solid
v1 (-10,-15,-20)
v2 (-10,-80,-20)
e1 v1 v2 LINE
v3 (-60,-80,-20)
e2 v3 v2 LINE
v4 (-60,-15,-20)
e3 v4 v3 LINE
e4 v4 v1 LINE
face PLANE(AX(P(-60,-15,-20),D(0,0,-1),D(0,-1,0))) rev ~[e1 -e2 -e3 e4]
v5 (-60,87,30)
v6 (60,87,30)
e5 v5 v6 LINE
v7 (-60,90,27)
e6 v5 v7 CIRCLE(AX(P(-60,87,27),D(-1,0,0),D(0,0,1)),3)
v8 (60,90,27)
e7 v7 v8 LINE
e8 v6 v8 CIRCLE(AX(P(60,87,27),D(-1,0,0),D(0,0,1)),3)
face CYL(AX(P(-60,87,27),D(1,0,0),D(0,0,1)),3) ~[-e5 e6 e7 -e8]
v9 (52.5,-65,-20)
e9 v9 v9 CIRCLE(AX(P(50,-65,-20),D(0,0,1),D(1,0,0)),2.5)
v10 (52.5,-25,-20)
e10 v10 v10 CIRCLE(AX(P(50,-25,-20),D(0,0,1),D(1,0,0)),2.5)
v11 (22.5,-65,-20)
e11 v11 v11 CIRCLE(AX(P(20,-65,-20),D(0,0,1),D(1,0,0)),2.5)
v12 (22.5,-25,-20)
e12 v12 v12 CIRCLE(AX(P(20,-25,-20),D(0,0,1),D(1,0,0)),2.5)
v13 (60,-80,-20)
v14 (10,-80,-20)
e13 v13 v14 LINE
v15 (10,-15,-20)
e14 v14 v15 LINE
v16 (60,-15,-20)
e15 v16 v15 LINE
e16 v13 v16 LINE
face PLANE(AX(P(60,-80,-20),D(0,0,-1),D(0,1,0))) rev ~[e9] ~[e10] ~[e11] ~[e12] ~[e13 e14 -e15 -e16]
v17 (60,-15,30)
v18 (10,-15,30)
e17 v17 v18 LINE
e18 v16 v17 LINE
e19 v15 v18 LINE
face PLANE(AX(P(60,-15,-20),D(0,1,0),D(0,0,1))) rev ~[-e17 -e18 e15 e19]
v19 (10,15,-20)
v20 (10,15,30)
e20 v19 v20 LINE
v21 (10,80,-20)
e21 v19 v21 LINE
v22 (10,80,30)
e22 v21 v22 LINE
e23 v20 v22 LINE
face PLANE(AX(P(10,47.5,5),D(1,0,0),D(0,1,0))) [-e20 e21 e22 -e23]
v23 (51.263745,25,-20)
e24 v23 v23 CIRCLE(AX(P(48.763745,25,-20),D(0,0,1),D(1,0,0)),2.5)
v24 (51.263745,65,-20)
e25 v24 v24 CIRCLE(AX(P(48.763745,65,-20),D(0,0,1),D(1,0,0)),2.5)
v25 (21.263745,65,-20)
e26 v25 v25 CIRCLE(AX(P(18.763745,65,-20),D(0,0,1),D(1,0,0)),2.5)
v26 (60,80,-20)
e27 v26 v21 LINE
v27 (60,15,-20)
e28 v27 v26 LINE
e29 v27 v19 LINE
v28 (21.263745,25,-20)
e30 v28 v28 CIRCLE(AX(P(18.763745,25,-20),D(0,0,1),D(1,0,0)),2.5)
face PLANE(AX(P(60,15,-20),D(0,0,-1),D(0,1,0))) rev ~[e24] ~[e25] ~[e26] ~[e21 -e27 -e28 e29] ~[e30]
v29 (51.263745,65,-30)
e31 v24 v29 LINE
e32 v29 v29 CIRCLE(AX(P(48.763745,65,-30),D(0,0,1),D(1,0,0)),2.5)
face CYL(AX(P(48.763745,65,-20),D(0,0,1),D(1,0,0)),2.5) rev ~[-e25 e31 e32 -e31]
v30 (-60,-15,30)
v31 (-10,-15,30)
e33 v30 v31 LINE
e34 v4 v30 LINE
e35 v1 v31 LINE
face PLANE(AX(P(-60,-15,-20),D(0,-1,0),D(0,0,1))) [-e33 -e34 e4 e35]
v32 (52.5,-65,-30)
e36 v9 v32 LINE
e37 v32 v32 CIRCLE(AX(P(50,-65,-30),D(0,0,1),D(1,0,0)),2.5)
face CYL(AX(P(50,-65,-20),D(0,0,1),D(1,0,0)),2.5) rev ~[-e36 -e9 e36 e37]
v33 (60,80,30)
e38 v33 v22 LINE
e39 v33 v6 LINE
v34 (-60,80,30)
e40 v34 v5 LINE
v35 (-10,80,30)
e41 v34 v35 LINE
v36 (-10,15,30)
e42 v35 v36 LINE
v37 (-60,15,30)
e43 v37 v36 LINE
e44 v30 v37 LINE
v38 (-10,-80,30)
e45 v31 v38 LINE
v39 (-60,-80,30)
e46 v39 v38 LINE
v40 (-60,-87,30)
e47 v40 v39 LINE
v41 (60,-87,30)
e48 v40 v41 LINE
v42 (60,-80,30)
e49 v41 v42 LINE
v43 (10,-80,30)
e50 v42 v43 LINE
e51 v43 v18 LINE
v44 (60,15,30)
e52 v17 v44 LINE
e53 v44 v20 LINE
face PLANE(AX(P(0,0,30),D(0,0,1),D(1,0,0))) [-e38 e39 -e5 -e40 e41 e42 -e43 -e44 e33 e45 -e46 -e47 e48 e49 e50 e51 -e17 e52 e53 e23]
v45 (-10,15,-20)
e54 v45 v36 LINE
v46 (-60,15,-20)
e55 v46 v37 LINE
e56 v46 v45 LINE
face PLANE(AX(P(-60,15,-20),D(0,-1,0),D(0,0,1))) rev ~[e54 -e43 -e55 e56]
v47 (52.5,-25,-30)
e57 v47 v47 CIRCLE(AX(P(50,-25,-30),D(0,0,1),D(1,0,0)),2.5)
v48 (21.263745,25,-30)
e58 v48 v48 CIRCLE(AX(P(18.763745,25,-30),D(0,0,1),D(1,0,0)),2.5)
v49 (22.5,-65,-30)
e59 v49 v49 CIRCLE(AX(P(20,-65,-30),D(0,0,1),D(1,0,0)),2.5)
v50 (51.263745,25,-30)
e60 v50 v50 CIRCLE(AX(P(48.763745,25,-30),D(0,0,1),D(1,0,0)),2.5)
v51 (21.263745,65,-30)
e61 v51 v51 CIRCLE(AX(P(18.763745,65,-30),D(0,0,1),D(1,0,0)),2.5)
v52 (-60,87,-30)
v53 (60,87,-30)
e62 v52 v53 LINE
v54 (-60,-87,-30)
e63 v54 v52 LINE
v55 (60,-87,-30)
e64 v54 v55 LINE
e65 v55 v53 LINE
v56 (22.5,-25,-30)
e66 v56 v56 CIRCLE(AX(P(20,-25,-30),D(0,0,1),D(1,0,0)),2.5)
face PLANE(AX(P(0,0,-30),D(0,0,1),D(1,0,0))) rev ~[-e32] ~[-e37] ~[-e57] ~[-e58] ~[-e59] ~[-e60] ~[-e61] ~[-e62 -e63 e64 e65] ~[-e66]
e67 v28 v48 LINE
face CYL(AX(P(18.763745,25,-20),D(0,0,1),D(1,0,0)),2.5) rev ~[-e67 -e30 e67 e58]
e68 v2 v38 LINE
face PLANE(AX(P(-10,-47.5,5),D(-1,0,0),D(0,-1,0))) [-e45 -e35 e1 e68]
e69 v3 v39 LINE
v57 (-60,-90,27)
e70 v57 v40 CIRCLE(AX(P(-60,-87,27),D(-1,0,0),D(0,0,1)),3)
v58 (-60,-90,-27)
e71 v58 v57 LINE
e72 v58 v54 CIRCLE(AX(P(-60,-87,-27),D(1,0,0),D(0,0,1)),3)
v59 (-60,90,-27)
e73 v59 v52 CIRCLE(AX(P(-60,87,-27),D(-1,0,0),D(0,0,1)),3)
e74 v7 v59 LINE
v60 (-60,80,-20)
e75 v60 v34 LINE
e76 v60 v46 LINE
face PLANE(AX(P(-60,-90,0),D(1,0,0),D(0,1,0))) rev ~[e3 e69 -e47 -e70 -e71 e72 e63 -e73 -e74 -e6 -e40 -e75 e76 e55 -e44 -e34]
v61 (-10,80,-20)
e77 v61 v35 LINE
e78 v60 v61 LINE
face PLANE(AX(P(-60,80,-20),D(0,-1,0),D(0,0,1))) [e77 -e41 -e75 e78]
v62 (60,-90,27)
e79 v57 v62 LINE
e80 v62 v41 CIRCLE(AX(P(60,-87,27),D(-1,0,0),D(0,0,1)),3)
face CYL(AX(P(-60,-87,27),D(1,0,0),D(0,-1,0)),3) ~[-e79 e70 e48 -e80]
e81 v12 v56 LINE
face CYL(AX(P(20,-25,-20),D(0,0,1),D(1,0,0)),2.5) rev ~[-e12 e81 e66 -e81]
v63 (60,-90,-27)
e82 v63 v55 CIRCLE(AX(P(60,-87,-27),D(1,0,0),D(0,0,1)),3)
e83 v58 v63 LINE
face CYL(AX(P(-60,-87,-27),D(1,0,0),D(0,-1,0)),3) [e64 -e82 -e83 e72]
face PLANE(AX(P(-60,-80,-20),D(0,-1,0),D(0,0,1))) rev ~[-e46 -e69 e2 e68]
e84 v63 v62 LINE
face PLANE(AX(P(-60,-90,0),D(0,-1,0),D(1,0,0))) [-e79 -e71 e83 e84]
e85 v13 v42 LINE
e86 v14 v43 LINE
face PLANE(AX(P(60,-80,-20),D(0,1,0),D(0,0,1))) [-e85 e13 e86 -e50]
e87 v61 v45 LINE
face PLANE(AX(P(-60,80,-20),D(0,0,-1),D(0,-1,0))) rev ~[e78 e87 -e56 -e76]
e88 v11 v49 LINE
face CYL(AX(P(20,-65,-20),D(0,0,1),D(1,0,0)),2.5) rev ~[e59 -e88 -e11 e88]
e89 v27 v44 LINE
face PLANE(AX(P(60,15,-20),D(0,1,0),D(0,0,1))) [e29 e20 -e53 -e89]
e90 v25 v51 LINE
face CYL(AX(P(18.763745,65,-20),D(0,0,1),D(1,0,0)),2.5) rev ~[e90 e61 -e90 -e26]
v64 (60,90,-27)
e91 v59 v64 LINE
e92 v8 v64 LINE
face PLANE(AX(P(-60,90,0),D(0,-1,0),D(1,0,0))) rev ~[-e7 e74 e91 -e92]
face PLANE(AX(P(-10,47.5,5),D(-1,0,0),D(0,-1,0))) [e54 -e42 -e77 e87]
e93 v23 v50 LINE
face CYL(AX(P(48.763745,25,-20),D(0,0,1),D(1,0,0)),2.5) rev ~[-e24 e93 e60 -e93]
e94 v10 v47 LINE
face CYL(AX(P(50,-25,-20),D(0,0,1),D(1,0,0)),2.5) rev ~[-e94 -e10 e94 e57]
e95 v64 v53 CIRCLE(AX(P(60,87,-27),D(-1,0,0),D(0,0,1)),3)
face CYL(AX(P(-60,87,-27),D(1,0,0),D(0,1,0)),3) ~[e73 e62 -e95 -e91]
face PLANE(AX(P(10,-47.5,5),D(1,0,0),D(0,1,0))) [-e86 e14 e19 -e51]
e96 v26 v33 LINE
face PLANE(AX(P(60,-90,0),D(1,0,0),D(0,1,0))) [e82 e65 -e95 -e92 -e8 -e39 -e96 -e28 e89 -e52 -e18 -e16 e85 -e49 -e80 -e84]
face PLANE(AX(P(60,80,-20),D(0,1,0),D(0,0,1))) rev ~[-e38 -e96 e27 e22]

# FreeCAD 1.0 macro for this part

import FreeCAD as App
import Part
import Sketcher
from FreeCAD import Vector


def edges_at(feature, points):
    """Names of the edges that pass closest to the given points."""
    edges = feature.Shape.Edges
    near = lambda p: min(range(len(edges)), key=lambda i: edges[i].distToShape(Part.Vertex(*p))[0])
    return sorted({f"Edge{near(p) + 1}" for p in points})

doc = App.newDocument("Part")
params = doc.addObject("Spreadsheet::Sheet", "Params")
for row, (alias, value) in enumerate([
    ("sketch1_width", "120 mm"),
    ("sketch1_height", "180 mm"),
    ("pad1_length", "60 mm"),
    ("sketch2_width", "65 mm"),
    ("sketch2_height", "50 mm"),
    ("pocket1_length", "50 mm"),
    ("sketch3_width", "65 mm"),
    ("sketch3_height", "50 mm"),
    ("pocket2_length", "50 mm"),
    ("fillet_radius", "3 mm"),
    ("sketch4_diameter", "5 mm"),
], start=1):
    params.set(f"A{row}", alias)
    params.set(f"B{row}", "=" + value)
    params.setAlias(f"B{row}", alias)

body = doc.addObject("PartDesign::Body", "Body")

# Sketch on XY plane
sketch1 = body.newObject("Sketcher::SketchObject", "Sketch")
sketch1.AttachmentSupport = (doc.getObject("XY_Plane"), [""])
sketch1.MapMode = "FlatFace"
sketch1.addGeometry([
    Part.LineSegment(Vector(-60, 90, 0), Vector(-60, -90, 0)),
    Part.LineSegment(Vector(-60, -90, 0), Vector(60, -90, 0)),
    Part.LineSegment(Vector(60, -90, 0), Vector(60, 90, 0)),
    Part.LineSegment(Vector(60, 90, 0), Vector(-60, 90, 0)),
], False)
sketch1.addConstraint([
    Sketcher.Constraint("Coincident", 0, 2, 1, 1),
    Sketcher.Constraint("Coincident", 1, 2, 2, 1),
    Sketcher.Constraint("Coincident", 2, 2, 3, 1),
    Sketcher.Constraint("Coincident", 3, 2, 0, 1),
    Sketcher.Constraint("Vertical", 0),
    Sketcher.Constraint("Horizontal", 1),
    Sketcher.Constraint("Vertical", 2),
    Sketcher.Constraint("Horizontal", 3),
    Sketcher.Constraint("Symmetric", 0, 2, 2, 2, -1, 1),
    Sketcher.Constraint("DistanceX", 1, 1, 1, 2, 120.0),
    Sketcher.Constraint("DistanceY", 0, 2, 0, 1, 180.0),
])
sketch1.setExpression("Constraints[9]", "Params.sketch1_width")
sketch1.setExpression("Constraints[10]", "Params.sketch1_height")
pad1 = body.newObject("PartDesign::Pad", "Pad")
pad1.Profile = sketch1
pad1.setExpression("Length", "Params.pad1_length")
pad1.Midplane = True

# Sketch on YZ plane
sketch2 = body.newObject("Sketcher::SketchObject", "Sketch001")
sketch2.AttachmentSupport = (doc.getObject("YZ_Plane"), [""])
sketch2.MapMode = "FlatFace"
sketch2.AttachmentOffset = App.Placement(Vector(0, 0, 60), App.Rotation())
sketch2.addGeometry([
    Part.LineSegment(Vector(-80, 30, 0), Vector(-80, -20, 0)),  # 0
    Part.LineSegment(Vector(-80, -20, 0), Vector(-15, -20, 0)),  # 1
    Part.LineSegment(Vector(-15, -20, 0), Vector(-15, 30, 0)),  # 2
    Part.LineSegment(Vector(-15, 30, 0), Vector(-80, 30, 0)),  # 3
    Part.LineSegment(Vector(15, 30, 0), Vector(15, -20, 0)),  # 4
    Part.LineSegment(Vector(15, -20, 0), Vector(80, -20, 0)),  # 5
    Part.LineSegment(Vector(80, -20, 0), Vector(80, 30, 0)),  # 6
    Part.LineSegment(Vector(80, 30, 0), Vector(15, 30, 0)),  # 7
], False)
sketch2.addConstraint([
    Sketcher.Constraint("Coincident", 0, 2, 1, 1),
    Sketcher.Constraint("Coincident", 1, 2, 2, 1),
    Sketcher.Constraint("Coincident", 2, 2, 3, 1),
    Sketcher.Constraint("Coincident", 3, 2, 0, 1),
    Sketcher.Constraint("Coincident", 4, 2, 5, 1),
    Sketcher.Constraint("Coincident", 5, 2, 6, 1),
    Sketcher.Constraint("Coincident", 6, 2, 7, 1),
    Sketcher.Constraint("Coincident", 7, 2, 4, 1),
    Sketcher.Constraint("Vertical", 0),
    Sketcher.Constraint("Horizontal", 1),
    Sketcher.Constraint("Vertical", 2),
    Sketcher.Constraint("Horizontal", 3),
    Sketcher.Constraint("Vertical", 4),
    Sketcher.Constraint("Horizontal", 5),
    Sketcher.Constraint("Vertical", 6),
    Sketcher.Constraint("Horizontal", 7),
    Sketcher.Constraint("Symmetric", 1, 2, 4, 2, -2),
    Sketcher.Constraint("Symmetric", 3, 2, 6, 2, -2),
    Sketcher.Constraint("DistanceX", 1, 1, 1, 2, 65.0),
    Sketcher.Constraint("DistanceY", 0, 2, 0, 1, 50.0),
    Sketcher.Constraint("DistanceX", 0, 2, -1, 1, 80.0),
    Sketcher.Constraint("DistanceY", 0, 2, -1, 1, 20.0),
])
sketch2.setExpression("Constraints[18]", "Params.sketch2_width")
sketch2.setExpression("Constraints[19]", "Params.sketch2_height")
pocket1 = body.newObject("PartDesign::Pocket", "Pocket")
pocket1.Profile = sketch2
pocket1.setExpression("Length", "Params.pocket1_length")

# Sketch on YZ plane
sketch3 = body.newObject("Sketcher::SketchObject", "Sketch002")
sketch3.AttachmentSupport = (doc.getObject("YZ_Plane"), [""])
sketch3.MapMode = "FlatFace"
sketch3.AttachmentOffset = App.Placement(Vector(0, 0, -60), App.Rotation())
sketch3.addGeometry([
    Part.LineSegment(Vector(80, 30, 0), Vector(80, -20, 0)),  # 0
    Part.LineSegment(Vector(80, -20, 0), Vector(15, -20, 0)),  # 1
    Part.LineSegment(Vector(15, -20, 0), Vector(15, 30, 0)),  # 2
    Part.LineSegment(Vector(15, 30, 0), Vector(80, 30, 0)),  # 3
    Part.LineSegment(Vector(-15, 30, 0), Vector(-15, -20, 0)),  # 4
    Part.LineSegment(Vector(-15, -20, 0), Vector(-80, -20, 0)),  # 5
    Part.LineSegment(Vector(-80, -20, 0), Vector(-80, 30, 0)),  # 6
    Part.LineSegment(Vector(-80, 30, 0), Vector(-15, 30, 0)),  # 7
], False)
sketch3.addConstraint([
    Sketcher.Constraint("Coincident", 0, 2, 1, 1),
    Sketcher.Constraint("Coincident", 1, 2, 2, 1),
    Sketcher.Constraint("Coincident", 2, 2, 3, 1),
    Sketcher.Constraint("Coincident", 3, 2, 0, 1),
    Sketcher.Constraint("Coincident", 4, 2, 5, 1),
    Sketcher.Constraint("Coincident", 5, 2, 6, 1),
    Sketcher.Constraint("Coincident", 6, 2, 7, 1),
    Sketcher.Constraint("Coincident", 7, 2, 4, 1),
    Sketcher.Constraint("Vertical", 0),
    Sketcher.Constraint("Horizontal", 1),
    Sketcher.Constraint("Vertical", 2),
    Sketcher.Constraint("Horizontal", 3),
    Sketcher.Constraint("Vertical", 4),
    Sketcher.Constraint("Horizontal", 5),
    Sketcher.Constraint("Vertical", 6),
    Sketcher.Constraint("Horizontal", 7),
    Sketcher.Constraint("Symmetric", 1, 2, 4, 2, -2),
    Sketcher.Constraint("Symmetric", 3, 2, 6, 2, -2),
    Sketcher.Constraint("DistanceX", 1, 2, 1, 1, 65.0),
    Sketcher.Constraint("DistanceY", 0, 2, 0, 1, 50.0),
    Sketcher.Constraint("DistanceX", -1, 1, 0, 2, 80.0),
    Sketcher.Constraint("DistanceY", 0, 2, -1, 1, 20.0),
])
sketch3.setExpression("Constraints[18]", "Params.sketch3_width")
sketch3.setExpression("Constraints[19]", "Params.sketch3_height")
pocket2 = body.newObject("PartDesign::Pocket", "Pocket001")
pocket2.Profile = sketch3
pocket2.setExpression("Length", "Params.pocket2_length")
pocket2.Reversed = True
doc.recompute()

fillet = body.newObject("PartDesign::Fillet", "Fillet")
fillet.Base = (pocket2, edges_at(pocket2, [
    (0, -90, 30),
    (0, 90, 30),
    (0, -90, -30),
    (0, 90, -30),
]))
fillet.setExpression("Radius", "Params.fillet_radius")

# Sketch on XY plane
sketch4 = body.newObject("Sketcher::SketchObject", "Sketch003")
sketch4.AttachmentSupport = (doc.getObject("XY_Plane"), [""])
sketch4.MapMode = "FlatFace"
sketch4.AttachmentOffset = App.Placement(Vector(0, 0, -20), App.Rotation())
sketch4.addGeometry([
    Part.Circle(Vector(50, -65, 0), Vector(0, 0, 1), 2.5),  # 0
    Part.Circle(Vector(50, -25, 0), Vector(0, 0, 1), 2.5),  # 1
    Part.Circle(Vector(20, -65, 0), Vector(0, 0, 1), 2.5),  # 2
    Part.Circle(Vector(20, -25, 0), Vector(0, 0, 1), 2.5),  # 3
    Part.Circle(Vector(48.763745, 25, 0), Vector(0, 0, 1), 2.5),  # 4
    Part.Circle(Vector(18.763745, 25, 0), Vector(0, 0, 1), 2.5),  # 5
    Part.Circle(Vector(18.763745, 65, 0), Vector(0, 0, 1), 2.5),  # 6
    Part.Circle(Vector(48.763745, 65, 0), Vector(0, 0, 1), 2.5),  # 7
], False)
sketch4.addConstraint([
    Sketcher.Constraint("Equal", 0, 1),
    Sketcher.Constraint("Equal", 1, 2),
    Sketcher.Constraint("Equal", 2, 3),
    Sketcher.Constraint("Equal", 3, 4),
    Sketcher.Constraint("Equal", 4, 5),
    Sketcher.Constraint("Equal", 5, 6),
    Sketcher.Constraint("Equal", 6, 7),
    Sketcher.Constraint("Horizontal", 0, 3, 2, 3),
    Sketcher.Constraint("Horizontal", 1, 3, 3, 3),
    Sketcher.Constraint("Horizontal", 4, 3, 5, 3),
    Sketcher.Constraint("Horizontal", 6, 3, 7, 3),
    Sketcher.Constraint("Vertical", 0, 3, 1, 3),
    Sketcher.Constraint("Vertical", 2, 3, 3, 3),
    Sketcher.Constraint("Vertical", 5, 3, 6, 3),
    Sketcher.Constraint("Vertical", 4, 3, 7, 3),
    Sketcher.Constraint("Diameter", 0, 5.0),
    Sketcher.Constraint("DistanceX", -1, 1, 0, 3, 50.0),
    Sketcher.Constraint("DistanceY", 0, 3, -1, 1, 65.0),
    Sketcher.Constraint("DistanceY", 1, 3, -1, 1, 25.0),
    Sketcher.Constraint("DistanceX", -1, 1, 2, 3, 20.0),
    Sketcher.Constraint("DistanceY", -1, 1, 4, 3, 25.0),
    Sketcher.Constraint("DistanceY", -1, 1, 6, 3, 65.0),
    Sketcher.Constraint("DistanceX", 5, 3, 4, 3, 30.0),
    Sketcher.Constraint("DistanceX", -1, 1, 4, 3, 48.763745),
])
sketch4.setExpression("Constraints[15]", "Params.sketch4_diameter")
pocket3 = body.newObject("PartDesign::Pocket", "Pocket002")
pocket3.Profile = sketch4
pocket3.Type = "ThroughAll"
pocket3.Midplane = True

doc.recompute()
